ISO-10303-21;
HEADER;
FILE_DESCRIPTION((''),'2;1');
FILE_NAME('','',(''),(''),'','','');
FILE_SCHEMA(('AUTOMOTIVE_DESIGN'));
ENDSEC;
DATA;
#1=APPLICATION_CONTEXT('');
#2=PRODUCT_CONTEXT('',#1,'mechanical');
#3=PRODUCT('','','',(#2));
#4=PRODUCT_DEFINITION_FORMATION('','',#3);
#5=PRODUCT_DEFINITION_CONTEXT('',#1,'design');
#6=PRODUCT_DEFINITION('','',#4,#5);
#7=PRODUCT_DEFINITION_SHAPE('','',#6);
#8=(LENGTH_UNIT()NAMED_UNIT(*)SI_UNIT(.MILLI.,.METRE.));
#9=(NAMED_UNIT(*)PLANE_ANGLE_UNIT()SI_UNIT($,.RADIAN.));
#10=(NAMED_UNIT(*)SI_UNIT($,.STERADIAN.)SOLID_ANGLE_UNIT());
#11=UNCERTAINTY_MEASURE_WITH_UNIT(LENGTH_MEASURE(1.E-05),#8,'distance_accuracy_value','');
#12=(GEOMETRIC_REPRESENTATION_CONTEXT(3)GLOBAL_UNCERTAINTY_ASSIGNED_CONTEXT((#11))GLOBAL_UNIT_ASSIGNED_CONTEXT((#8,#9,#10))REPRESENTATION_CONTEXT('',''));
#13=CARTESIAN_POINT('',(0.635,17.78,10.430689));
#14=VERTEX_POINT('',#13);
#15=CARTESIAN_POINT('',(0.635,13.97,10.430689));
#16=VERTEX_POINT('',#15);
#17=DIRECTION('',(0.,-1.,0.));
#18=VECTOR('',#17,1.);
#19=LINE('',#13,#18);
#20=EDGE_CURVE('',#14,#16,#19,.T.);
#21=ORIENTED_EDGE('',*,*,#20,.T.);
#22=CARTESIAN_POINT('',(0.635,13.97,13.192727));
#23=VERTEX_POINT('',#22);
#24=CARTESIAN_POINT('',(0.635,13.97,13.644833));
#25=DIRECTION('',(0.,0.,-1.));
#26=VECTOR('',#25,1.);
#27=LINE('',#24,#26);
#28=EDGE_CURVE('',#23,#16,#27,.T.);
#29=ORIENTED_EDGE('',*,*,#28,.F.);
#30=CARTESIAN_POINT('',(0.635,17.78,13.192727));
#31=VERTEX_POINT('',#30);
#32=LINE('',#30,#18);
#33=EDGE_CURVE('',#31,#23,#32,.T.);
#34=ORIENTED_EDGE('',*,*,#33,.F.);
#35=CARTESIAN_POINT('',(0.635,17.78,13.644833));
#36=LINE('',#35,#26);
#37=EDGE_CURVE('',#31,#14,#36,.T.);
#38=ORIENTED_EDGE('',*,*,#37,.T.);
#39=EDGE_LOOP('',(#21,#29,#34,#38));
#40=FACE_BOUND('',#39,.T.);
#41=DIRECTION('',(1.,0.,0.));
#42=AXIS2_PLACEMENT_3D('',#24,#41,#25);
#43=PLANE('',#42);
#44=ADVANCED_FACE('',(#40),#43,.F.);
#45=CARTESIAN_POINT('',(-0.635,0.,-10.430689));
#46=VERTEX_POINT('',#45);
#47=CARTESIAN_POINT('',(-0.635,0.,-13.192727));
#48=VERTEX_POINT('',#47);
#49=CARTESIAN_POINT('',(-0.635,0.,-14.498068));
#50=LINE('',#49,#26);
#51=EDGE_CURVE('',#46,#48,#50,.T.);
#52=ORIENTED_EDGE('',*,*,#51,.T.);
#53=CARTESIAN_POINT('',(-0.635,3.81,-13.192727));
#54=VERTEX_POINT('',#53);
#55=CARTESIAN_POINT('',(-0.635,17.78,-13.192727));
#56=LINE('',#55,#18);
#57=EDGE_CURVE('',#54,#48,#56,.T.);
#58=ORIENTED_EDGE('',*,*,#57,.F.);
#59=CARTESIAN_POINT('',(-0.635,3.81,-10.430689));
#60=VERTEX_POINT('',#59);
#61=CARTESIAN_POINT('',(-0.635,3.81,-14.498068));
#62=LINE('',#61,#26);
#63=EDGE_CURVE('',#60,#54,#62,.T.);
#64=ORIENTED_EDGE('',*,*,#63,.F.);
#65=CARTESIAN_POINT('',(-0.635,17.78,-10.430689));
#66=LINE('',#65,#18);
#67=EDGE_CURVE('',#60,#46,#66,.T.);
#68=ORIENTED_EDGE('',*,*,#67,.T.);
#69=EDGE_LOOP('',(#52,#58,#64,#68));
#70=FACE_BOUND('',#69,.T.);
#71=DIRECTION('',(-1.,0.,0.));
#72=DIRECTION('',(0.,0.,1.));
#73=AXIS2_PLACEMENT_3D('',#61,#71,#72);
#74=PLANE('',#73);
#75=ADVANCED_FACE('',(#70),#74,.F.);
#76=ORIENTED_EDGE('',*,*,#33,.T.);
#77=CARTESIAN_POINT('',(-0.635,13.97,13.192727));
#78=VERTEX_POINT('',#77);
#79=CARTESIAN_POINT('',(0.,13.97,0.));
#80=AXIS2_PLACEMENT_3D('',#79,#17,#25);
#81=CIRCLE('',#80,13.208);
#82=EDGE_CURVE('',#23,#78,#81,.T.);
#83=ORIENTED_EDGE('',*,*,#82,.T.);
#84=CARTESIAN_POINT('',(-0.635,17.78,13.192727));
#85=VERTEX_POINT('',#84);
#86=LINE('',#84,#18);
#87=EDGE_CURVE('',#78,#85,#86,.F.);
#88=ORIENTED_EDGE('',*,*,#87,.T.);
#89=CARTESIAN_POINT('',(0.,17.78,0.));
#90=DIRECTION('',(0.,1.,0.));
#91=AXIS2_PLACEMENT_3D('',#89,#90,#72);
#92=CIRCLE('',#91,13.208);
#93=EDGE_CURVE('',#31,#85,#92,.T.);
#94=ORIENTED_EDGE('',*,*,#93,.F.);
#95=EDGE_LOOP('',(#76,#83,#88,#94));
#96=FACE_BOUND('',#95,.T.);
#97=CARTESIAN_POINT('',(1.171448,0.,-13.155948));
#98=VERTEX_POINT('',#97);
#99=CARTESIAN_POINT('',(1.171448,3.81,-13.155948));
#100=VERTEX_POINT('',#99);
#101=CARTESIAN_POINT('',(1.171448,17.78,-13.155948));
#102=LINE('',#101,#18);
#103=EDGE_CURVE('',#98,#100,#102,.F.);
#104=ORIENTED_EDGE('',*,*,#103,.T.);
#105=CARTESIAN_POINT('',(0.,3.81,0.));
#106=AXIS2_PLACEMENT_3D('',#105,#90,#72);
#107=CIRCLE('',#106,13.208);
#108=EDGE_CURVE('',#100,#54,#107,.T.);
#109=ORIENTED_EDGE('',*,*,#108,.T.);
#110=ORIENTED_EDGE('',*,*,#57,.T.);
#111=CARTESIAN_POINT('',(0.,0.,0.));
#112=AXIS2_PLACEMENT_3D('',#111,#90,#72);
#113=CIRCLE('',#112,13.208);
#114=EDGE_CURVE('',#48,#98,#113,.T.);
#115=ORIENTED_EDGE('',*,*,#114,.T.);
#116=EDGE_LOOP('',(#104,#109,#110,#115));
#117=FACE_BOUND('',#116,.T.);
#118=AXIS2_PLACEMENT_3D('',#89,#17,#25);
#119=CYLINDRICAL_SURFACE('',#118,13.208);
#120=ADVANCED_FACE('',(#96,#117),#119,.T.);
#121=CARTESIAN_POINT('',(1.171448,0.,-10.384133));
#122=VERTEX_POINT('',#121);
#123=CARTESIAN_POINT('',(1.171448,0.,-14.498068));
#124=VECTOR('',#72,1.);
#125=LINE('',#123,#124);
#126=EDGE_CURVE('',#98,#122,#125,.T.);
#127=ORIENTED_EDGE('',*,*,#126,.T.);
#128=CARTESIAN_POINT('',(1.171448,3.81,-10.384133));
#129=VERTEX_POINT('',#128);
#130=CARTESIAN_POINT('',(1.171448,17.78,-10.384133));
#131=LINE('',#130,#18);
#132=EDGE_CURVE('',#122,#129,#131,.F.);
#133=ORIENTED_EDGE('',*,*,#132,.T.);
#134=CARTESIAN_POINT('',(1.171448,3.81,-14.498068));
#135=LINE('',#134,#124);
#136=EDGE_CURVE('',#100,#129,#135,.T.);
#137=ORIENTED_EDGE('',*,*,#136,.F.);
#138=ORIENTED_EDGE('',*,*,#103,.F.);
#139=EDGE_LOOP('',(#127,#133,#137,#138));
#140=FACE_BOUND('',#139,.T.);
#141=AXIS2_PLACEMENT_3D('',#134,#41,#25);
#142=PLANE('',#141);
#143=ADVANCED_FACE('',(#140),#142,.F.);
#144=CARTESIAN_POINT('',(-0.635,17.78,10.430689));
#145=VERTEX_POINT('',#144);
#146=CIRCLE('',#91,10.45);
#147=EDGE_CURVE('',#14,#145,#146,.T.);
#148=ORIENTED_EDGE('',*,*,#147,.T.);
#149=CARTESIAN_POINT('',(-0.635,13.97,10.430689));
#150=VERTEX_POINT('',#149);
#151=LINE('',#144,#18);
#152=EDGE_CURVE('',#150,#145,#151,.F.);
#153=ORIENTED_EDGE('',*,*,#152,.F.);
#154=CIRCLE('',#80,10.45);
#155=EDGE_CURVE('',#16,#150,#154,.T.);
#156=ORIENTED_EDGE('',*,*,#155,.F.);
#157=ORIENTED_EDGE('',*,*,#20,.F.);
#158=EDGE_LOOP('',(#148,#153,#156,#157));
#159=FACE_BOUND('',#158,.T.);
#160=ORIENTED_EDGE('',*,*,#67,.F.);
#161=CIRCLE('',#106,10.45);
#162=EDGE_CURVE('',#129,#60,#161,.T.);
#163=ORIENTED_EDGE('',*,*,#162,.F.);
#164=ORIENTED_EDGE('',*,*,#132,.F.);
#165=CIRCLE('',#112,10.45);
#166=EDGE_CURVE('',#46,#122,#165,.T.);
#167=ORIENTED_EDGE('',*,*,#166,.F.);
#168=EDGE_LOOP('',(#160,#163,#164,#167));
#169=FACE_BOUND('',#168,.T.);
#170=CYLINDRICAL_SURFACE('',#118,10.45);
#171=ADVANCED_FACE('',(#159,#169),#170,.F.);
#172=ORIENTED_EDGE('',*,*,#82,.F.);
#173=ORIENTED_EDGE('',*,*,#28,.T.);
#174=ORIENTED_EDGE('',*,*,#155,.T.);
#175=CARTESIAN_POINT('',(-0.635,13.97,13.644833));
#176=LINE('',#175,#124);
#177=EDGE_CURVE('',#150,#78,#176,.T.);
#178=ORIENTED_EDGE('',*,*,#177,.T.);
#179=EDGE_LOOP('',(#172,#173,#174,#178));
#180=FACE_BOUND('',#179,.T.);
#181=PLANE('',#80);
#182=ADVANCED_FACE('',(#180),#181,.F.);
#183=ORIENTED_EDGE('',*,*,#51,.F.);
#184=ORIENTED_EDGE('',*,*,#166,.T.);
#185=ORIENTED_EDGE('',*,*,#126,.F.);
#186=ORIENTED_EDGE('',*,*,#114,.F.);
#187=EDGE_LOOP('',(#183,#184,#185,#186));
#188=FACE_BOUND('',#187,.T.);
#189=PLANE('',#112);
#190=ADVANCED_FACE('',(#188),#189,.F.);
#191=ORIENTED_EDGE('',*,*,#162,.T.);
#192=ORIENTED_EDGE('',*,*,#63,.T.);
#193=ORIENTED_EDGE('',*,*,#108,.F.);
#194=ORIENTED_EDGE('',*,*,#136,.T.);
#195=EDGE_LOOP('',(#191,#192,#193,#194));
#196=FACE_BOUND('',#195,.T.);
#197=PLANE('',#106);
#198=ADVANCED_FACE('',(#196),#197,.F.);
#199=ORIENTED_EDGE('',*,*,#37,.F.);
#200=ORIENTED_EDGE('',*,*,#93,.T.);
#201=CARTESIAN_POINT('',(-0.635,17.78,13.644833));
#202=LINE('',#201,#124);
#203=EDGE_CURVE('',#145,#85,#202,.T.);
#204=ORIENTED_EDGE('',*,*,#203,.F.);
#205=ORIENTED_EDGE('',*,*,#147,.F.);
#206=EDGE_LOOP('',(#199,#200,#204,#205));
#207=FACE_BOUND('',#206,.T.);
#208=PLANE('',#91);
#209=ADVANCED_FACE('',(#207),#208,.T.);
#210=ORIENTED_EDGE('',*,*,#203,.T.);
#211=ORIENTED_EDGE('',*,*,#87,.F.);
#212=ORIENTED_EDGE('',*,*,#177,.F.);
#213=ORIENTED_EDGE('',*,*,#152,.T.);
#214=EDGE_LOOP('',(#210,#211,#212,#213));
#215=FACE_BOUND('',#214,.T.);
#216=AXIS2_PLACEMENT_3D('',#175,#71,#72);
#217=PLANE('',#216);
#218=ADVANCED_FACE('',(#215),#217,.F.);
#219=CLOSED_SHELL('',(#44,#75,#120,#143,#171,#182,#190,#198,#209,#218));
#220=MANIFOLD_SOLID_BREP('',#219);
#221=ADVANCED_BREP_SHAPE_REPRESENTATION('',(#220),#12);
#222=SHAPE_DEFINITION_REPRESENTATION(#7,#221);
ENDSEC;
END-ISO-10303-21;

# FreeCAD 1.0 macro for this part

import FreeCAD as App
import Part
import Sketcher
Q = App.Units.Quantity


def add_polygon(sketch, points):
    """Adds a closed chain of lines whose ends are joined by coincident constraints."""
    first, n = sketch.GeometryCount, len(points)
    for a, b in zip(points, points[1:] + points[:1]):
        sketch.addGeometry(Part.LineSegment(App.Vector(*a, 0), App.Vector(*b, 0)), False)
    for i in range(n):
        sketch.addConstraint(Sketcher.Constraint("Coincident", first + i, 2, first + (i + 1) % n, 1))

doc = App.newDocument("Part")
body = doc.addObject("PartDesign::Body", "Body")

sketch1 = body.newObject("Sketcher::SketchObject", "Sketch")
sketch1.AttachmentSupport = (doc.getObject("XZ_Plane"), [""])
sketch1.MapMode = "FlatFace"
sketch1.addGeometry([
    Part.Circle(App.Vector(0, 0, 0), App.Vector(0, 0, 1), 13.208),
    Part.Circle(App.Vector(0, 0, 0), App.Vector(0, 0, 1), 10.45),
], False)
sketch1.addConstraint([
    Sketcher.Constraint("Coincident", 0, 3, -1, 1),
    Sketcher.Constraint("Coincident", 1, 3, -1, 1),
    Sketcher.Constraint("Diameter", 0, Q("1.04 in")),
    Sketcher.Constraint("Diameter", 1, 20.9),
])
pad1 = body.newObject("PartDesign::Pad", "Pad")
pad1.Profile = sketch1
pad1.Length = Q("0.7 in")
pad1.Reversed = True

sketch2 = body.newObject("Sketcher::SketchObject", "Sketch001")
sketch2.AttachmentSupport = (doc.getObject("XZ_Plane"), [""])
sketch2.MapMode = "FlatFace"
sketch2.AttachmentOffset = App.Placement(App.Vector(0, 0, -0.7 * 25.4), App.Rotation())
add_polygon(sketch2, [(-0.635, 10.057719), (-0.635, 13.644834), (0.635, 13.644834), (0.635, 10.057719)])
sketch2.addConstraint([
    Sketcher.Constraint("Vertical", 0),
    Sketcher.Constraint("Horizontal", 1),
    Sketcher.Constraint("Vertical", 2),
    Sketcher.Constraint("Horizontal", 3),
    Sketcher.Constraint("DistanceX", 1, 1, 1, 2, Q("0.05 in")),
    Sketcher.Constraint("DistanceX", 0, 2, -1, 1, Q("0.025 in")),
    Sketcher.Constraint("DistanceY", 0, 1, 0, 2, 3.587115),
    Sketcher.Constraint("DistanceY", -1, 1, 2, 2, 10.057719),
])
pocket1 = body.newObject("PartDesign::Pocket", "Pocket")
pocket1.Profile = sketch2
pocket1.Length = Q("0.15 in")
pocket1.Reversed = True

sketch3 = body.newObject("Sketcher::SketchObject", "Sketch002")
sketch3.AttachmentSupport = (doc.getObject("XZ_Plane"), [""])
sketch3.MapMode = "FlatFace"
add_polygon(sketch3, [(-0.635, -10.198766), (-0.635, -14.498068), (1.171448, -14.498068), (1.171448, -10.198766)])
sketch3.addConstraint([
    Sketcher.Constraint("Vertical", 0),
    Sketcher.Constraint("Horizontal", 1),
    Sketcher.Constraint("Vertical", 2),
    Sketcher.Constraint("Horizontal", 3),
    Sketcher.Constraint("DistanceX", 0, 2, -1, 1, Q("0.025 in")),
    Sketcher.Constraint("DistanceY", 0, 2, 0, 1, 4.299302),
    Sketcher.Constraint("DistanceX", 1, 1, 1, 2, 1.806448),
    Sketcher.Constraint("DistanceY", 0, 2, -1, 1, 14.498068),
])
pocket2 = body.newObject("PartDesign::Pocket", "Pocket001")
pocket2.Profile = sketch3
pocket2.Length = Q("0.15 in")

doc.recompute()
